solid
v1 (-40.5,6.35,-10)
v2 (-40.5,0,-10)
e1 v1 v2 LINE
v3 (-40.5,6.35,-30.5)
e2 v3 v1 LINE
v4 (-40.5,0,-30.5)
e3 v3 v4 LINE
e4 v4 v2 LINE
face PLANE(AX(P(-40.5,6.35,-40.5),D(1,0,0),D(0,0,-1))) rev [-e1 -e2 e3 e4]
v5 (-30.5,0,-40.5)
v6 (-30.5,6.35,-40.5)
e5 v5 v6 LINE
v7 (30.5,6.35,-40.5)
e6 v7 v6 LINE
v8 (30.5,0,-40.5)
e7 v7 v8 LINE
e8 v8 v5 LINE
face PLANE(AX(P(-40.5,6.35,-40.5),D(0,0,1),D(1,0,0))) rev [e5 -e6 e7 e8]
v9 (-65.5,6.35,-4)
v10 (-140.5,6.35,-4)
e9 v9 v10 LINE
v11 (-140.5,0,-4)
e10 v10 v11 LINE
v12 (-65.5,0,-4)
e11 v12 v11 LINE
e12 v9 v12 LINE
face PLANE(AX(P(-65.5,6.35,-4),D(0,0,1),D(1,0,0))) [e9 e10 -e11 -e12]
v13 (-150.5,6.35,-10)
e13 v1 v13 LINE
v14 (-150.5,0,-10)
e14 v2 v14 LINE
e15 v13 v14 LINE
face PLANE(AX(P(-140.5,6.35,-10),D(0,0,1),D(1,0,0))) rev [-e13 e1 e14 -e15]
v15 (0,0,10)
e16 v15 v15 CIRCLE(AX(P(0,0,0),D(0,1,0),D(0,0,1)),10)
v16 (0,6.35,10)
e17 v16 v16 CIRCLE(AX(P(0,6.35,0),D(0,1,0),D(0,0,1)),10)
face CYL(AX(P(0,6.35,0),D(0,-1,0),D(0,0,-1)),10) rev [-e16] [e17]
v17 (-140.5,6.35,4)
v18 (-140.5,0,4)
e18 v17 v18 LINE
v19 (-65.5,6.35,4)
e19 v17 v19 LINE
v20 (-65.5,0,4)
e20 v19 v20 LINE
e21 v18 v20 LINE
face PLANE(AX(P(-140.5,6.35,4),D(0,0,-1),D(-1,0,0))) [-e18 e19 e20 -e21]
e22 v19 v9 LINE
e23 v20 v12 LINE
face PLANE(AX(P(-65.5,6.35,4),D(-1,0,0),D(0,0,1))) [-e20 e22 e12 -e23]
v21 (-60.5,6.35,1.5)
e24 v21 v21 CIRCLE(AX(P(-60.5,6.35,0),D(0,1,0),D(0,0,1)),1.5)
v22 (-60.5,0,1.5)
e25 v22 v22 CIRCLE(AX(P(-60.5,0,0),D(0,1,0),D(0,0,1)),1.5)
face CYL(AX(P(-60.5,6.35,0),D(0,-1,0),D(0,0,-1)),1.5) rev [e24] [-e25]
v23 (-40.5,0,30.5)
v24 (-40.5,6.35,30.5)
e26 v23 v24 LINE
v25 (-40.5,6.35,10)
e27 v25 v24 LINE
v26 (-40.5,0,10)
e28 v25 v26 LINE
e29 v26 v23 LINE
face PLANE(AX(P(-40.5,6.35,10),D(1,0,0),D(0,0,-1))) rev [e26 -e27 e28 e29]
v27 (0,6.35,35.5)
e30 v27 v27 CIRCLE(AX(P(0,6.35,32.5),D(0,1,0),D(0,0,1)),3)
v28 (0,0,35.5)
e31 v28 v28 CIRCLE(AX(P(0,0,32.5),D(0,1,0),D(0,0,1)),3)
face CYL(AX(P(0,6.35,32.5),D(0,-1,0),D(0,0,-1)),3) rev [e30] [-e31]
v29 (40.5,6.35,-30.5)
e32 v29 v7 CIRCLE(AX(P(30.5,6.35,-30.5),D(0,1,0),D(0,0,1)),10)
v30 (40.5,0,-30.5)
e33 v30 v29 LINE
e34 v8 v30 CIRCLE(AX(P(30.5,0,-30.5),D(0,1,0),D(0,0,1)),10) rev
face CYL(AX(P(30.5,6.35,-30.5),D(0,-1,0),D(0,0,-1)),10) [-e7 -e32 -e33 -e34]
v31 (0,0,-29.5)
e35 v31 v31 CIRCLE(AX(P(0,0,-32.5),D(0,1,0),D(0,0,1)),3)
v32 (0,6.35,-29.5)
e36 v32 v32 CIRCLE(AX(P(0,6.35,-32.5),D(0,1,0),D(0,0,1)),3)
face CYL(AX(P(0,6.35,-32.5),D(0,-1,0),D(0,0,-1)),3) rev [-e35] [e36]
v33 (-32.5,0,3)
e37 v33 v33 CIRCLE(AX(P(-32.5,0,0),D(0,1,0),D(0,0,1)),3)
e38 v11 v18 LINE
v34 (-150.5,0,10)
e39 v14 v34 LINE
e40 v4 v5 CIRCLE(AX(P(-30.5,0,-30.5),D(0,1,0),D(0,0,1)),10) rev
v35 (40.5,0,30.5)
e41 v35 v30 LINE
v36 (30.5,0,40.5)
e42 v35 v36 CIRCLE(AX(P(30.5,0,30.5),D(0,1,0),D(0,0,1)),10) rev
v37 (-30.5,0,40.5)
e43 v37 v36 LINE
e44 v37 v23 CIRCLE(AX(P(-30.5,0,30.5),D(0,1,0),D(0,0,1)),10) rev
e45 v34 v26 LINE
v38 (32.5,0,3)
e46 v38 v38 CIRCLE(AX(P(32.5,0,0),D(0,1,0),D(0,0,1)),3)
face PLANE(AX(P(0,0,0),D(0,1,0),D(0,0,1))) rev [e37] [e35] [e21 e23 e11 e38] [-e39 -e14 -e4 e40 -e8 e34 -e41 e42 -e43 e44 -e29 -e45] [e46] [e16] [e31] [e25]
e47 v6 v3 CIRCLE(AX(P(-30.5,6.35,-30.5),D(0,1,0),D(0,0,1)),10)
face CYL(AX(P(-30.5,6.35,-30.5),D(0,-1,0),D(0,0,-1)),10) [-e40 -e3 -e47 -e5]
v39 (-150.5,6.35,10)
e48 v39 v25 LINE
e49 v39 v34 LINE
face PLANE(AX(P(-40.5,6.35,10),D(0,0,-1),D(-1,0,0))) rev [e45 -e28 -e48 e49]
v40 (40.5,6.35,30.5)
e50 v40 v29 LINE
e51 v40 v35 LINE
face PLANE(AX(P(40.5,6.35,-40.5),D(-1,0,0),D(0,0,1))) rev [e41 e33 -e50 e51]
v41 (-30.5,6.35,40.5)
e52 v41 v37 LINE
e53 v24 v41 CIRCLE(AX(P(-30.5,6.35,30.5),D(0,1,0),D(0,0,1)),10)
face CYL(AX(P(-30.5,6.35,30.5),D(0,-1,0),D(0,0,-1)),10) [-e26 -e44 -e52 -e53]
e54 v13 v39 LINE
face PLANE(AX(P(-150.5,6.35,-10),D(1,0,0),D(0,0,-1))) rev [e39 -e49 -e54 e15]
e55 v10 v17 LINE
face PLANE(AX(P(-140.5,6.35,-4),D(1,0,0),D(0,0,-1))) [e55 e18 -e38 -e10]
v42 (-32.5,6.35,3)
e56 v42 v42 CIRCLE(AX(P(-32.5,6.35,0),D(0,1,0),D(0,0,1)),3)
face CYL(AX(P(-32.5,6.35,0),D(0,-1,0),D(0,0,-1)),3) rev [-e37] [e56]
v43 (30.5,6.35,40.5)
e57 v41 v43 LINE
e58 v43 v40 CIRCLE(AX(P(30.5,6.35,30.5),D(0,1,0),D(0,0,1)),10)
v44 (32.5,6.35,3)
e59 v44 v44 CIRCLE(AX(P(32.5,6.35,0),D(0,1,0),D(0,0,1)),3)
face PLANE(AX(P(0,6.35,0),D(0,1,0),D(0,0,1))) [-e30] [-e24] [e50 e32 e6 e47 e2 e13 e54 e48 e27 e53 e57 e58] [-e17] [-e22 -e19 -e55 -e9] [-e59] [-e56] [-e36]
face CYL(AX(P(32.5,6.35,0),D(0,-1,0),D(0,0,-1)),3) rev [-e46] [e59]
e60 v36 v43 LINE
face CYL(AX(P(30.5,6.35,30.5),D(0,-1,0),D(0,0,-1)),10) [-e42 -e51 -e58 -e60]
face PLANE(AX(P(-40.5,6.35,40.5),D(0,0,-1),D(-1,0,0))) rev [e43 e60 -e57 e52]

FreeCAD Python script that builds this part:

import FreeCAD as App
import Part
import Sketcher
from FreeCAD import Vector
Q = App.Units.Quantity


def edges_at(feature, points):
    """Names of the edges that pass closest to the given points."""
    edges = feature.Shape.Edges
    near = lambda p: min(range(len(edges)), key=lambda i: edges[i].distToShape(Part.Vertex(*p))[0])
    return sorted({f"Edge{near(p) + 1}" for p in points})

doc = App.newDocument("Part")
body = doc.addObject("PartDesign::Body", "Body")

sketch1 = body.newObject("Sketcher::SketchObject", "Sketch")
sketch1.AttachmentSupport = (doc.getObject("XZ_Plane"), [""])
sketch1.MapMode = "FlatFace"
sketch1.addGeometry([
    Part.LineSegment(Vector(40.5, -40.5, 0), Vector(-40.5, -40.5, 0)),
    Part.LineSegment(Vector(-40.5, -40.5, 0), Vector(-40.5, -10, 0)),
    Part.LineSegment(Vector(-40.5, -10, 0), Vector(-150.5, -10, 0)),
    Part.LineSegment(Vector(-150.5, -10, 0), Vector(-150.5, 10, 0)),
    Part.LineSegment(Vector(-150.5, 10, 0), Vector(-40.5, 10, 0)),
    Part.LineSegment(Vector(-40.5, 10, 0), Vector(-40.5, 40.5, 0)),
    Part.LineSegment(Vector(-40.5, 40.5, 0), Vector(40.5, 40.5, 0)),
    Part.LineSegment(Vector(40.5, 40.5, 0), Vector(40.5, -40.5, 0)),
    Part.Circle(Vector(0, 32.5, 0), Vector(0, 0, 1), 3),
    Part.Circle(Vector(32.5, 0, 0), Vector(0, 0, 1), 3),
    Part.Circle(Vector(0, 0, 0), Vector(0, 0, 1), 10),
    Part.Circle(Vector(-32.5, 0, 0), Vector(0, 0, 1), 3),
    Part.Circle(Vector(0, -32.5, 0), Vector(0, 0, 1), 3),
    Part.Circle(Vector(-60.5, 0, 0), Vector(0, 0, 1), 1.5),
    Part.LineSegment(Vector(-140.5, 4, 0), Vector(-140.5, -4, 0)),
    Part.LineSegment(Vector(-140.5, -4, 0), Vector(-65.5, -4, 0)),
    Part.LineSegment(Vector(-65.5, -4, 0), Vector(-65.5, 4, 0)),
    Part.LineSegment(Vector(-65.5, 4, 0), Vector(-140.5, 4, 0)),
], False)
sketch1.addConstraint([
    Sketcher.Constraint("Coincident", 0, 2, 1, 1),
    Sketcher.Constraint("Coincident", 1, 2, 2, 1),
    Sketcher.Constraint("Coincident", 2, 2, 3, 1),
    Sketcher.Constraint("Coincident", 3, 2, 4, 1),
    Sketcher.Constraint("Coincident", 4, 2, 5, 1),
    Sketcher.Constraint("Coincident", 5, 2, 6, 1),
    Sketcher.Constraint("Coincident", 6, 2, 7, 1),
    Sketcher.Constraint("Coincident", 7, 2, 0, 1),
    Sketcher.Constraint("Coincident", 14, 2, 15, 1),
    Sketcher.Constraint("Coincident", 15, 2, 16, 1),
    Sketcher.Constraint("Coincident", 16, 2, 17, 1),
    Sketcher.Constraint("Coincident", 17, 2, 14, 1),
    Sketcher.Constraint("Horizontal", 0),
    Sketcher.Constraint("Vertical", 1),
    Sketcher.Constraint("Horizontal", 2),
    Sketcher.Constraint("Vertical", 3),
    Sketcher.Constraint("Horizontal", 4),
    Sketcher.Constraint("Vertical", 5),
    Sketcher.Constraint("Horizontal", 6),
    Sketcher.Constraint("Vertical", 7),
    Sketcher.Constraint("Vertical", 14),
    Sketcher.Constraint("Horizontal", 15),
    Sketcher.Constraint("Vertical", 16),
    Sketcher.Constraint("Horizontal", 17),
    Sketcher.Constraint("Coincident", 10, 3, -1, 1),
    Sketcher.Constraint("Equal", 8, 9),
    Sketcher.Constraint("Equal", 9, 11),
    Sketcher.Constraint("Equal", 11, 12),
    Sketcher.Constraint("Symmetric", 9, 3, 11, 3, -1, 1),
    Sketcher.Constraint("Symmetric", 8, 3, 12, 3, -1, 1),
    Sketcher.Constraint("Symmetric", 0, 2, 6, 2, -1, 1),
    Sketcher.Constraint("Symmetric", 1, 2, 4, 2, -1),
    Sketcher.Constraint("PointOnObject", 8, 3, -2),
    Sketcher.Constraint("PointOnObject", 9, 3, -1),
    Sketcher.Constraint("PointOnObject", 13, 3, -1),
    Sketcher.Constraint("Equal", 6, 7),
    Sketcher.Constraint("Diameter", 8, Q("6 mm")),
    Sketcher.Constraint("Diameter", 10, Q("20 mm")),
    Sketcher.Constraint("Diameter", 13, Q("3 mm")),
    Sketcher.Constraint("DistanceX", 0, 2, 0, 1, Q("81 mm")),
    Sketcher.Constraint("DistanceX", 2, 2, 2, 1, Q("110 mm")),
    Sketcher.Constraint("DistanceX", 15, 1, 15, 2, Q("75 mm")),
    Sketcher.Constraint("DistanceY", 3, 1, 3, 2, Q("20 mm")),
    Sketcher.Constraint("DistanceY", 14, 2, 14, 1, Q("8 mm")),
    Sketcher.Constraint("DistanceY", 14, 2, -1, 1, Q("4 mm")),
    Sketcher.Constraint("DistanceX", 11, 3, 9, 3, Q("65 mm")),
    Sketcher.Constraint("DistanceY", 12, 3, 8, 3, Q("65 mm")),
    Sketcher.Constraint("DistanceX", 13, 3, 11, 3, Q("28 mm")),
    Sketcher.Constraint("DistanceX", 2, 2, 14, 2, Q("10 mm")),
])
pad1 = body.newObject("PartDesign::Pad", "Pad")
pad1.Profile = sketch1
pad1.Length = 6.35
pad1.Reversed = True
doc.recompute()

fillet = body.newObject("PartDesign::Fillet", "Fillet")
fillet.Base = (pad1, edges_at(pad1, [
    (40.5, 3.175, 40.5),
    (-40.5, 3.175, 40.5),
    (-40.5, 3.175, -40.5),
    (40.5, 3.175, -40.5),
]))
fillet.Radius = 10

doc.recompute()
